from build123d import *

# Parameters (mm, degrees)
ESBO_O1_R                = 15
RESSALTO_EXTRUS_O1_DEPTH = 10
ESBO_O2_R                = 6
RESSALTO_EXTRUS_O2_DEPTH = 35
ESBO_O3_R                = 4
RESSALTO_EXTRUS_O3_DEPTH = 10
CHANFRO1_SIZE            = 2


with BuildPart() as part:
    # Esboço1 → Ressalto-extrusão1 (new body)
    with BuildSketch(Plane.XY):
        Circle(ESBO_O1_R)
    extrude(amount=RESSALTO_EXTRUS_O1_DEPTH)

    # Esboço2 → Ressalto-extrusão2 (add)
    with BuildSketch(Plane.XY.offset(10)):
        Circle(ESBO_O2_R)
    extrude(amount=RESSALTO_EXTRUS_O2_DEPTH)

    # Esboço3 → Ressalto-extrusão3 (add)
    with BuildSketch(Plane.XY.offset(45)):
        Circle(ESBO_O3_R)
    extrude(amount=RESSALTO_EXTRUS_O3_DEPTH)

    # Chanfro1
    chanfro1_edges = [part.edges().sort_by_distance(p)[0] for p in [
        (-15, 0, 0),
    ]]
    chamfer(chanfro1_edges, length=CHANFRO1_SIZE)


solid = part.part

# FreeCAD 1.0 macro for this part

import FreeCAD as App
import Part
import Sketcher
Q = App.Units.Quantity


def edges_at(feature, points):
    """Names of the edges that pass closest to the given points."""
    edges = feature.Shape.Edges
    near = lambda p: min(range(len(edges)), key=lambda i: edges[i].distToShape(Part.Vertex(*p))[0])
    return sorted({f"Edge{near(p) + 1}" for p in points})

doc = App.newDocument("Part")
params = doc.addObject("Spreadsheet::Sheet", "Params")
for row, (alias, value) in enumerate([
    ("sketch1_diameter", "30 mm"),
    ("pad1_length", "10 mm"),
    ("sketch2_diameter", "12 mm"),
    ("pad2_length", "35 mm"),
    ("sketch3_diameter", "8 mm"),
    ("pad3_length", "10 mm"),
    ("chamfer_size", "2 mm"),
], start=1):
    params.set(f"A{row}", alias)
    params.set(f"B{row}", "=" + value)
    params.setAlias(f"B{row}", alias)

body = doc.addObject("PartDesign::Body", "Body")

sketch1 = body.newObject("Sketcher::SketchObject", "Sketch")
sketch1.AttachmentSupport = (doc.getObject("XY_Plane"), [""])
sketch1.MapMode = "FlatFace"
sketch1.addGeometry(Part.Circle(App.Vector(0, 0, 0), App.Vector(0, 0, 1), 15), False)
sketch1.addConstraint([
    Sketcher.Constraint("Coincident", 0, 3, -1, 1),
    Sketcher.Constraint("Diameter", 0, Q("30 mm")),
])
sketch1.setExpression("Constraints[1]", "Params.sketch1_diameter")
pad1 = body.newObject("PartDesign::Pad", "Pad")
pad1.Profile = sketch1
pad1.setExpression("Length", "Params.pad1_length")

sketch2 = body.newObject("Sketcher::SketchObject", "Sketch001")
sketch2.AttachmentSupport = (doc.getObject("XY_Plane"), [""])
sketch2.MapMode = "FlatFace"
sketch2.AttachmentOffset = App.Placement(App.Vector(0, 0, 10), App.Rotation())
sketch2.addGeometry(Part.Circle(App.Vector(0, 0, 0), App.Vector(0, 0, 1), 6), False)
sketch2.addConstraint([
    Sketcher.Constraint("Coincident", 0, 3, -1, 1),
    Sketcher.Constraint("Diameter", 0, Q("12 mm")),
])
sketch2.setExpression("Constraints[1]", "Params.sketch2_diameter")
pad2 = body.newObject("PartDesign::Pad", "Pad001")
pad2.Profile = sketch2
pad2.setExpression("Length", "Params.pad2_length")

sketch3 = body.newObject("Sketcher::SketchObject", "Sketch002")
sketch3.AttachmentSupport = (doc.getObject("XY_Plane"), [""])
sketch3.MapMode = "FlatFace"
sketch3.AttachmentOffset = App.Placement(App.Vector(0, 0, 45), App.Rotation())
sketch3.addGeometry(Part.Circle(App.Vector(0, 0, 0), App.Vector(0, 0, 1), 4), False)
sketch3.addConstraint([
    Sketcher.Constraint("Coincident", 0, 3, -1, 1),
    Sketcher.Constraint("Diameter", 0, Q("8 mm")),
])
sketch3.setExpression("Constraints[1]", "Params.sketch3_diameter")
pad3 = body.newObject("PartDesign::Pad", "Pad002")
pad3.Profile = sketch3
pad3.setExpression("Length", "Params.pad3_length")
doc.recompute()

chamfer = body.newObject("PartDesign::Chamfer", "Chamfer")
chamfer.Base = (pad3, edges_at(pad3, [(-15, 0, 0)]))
chamfer.setExpression("Size", "Params.chamfer_size")

doc.recompute()
